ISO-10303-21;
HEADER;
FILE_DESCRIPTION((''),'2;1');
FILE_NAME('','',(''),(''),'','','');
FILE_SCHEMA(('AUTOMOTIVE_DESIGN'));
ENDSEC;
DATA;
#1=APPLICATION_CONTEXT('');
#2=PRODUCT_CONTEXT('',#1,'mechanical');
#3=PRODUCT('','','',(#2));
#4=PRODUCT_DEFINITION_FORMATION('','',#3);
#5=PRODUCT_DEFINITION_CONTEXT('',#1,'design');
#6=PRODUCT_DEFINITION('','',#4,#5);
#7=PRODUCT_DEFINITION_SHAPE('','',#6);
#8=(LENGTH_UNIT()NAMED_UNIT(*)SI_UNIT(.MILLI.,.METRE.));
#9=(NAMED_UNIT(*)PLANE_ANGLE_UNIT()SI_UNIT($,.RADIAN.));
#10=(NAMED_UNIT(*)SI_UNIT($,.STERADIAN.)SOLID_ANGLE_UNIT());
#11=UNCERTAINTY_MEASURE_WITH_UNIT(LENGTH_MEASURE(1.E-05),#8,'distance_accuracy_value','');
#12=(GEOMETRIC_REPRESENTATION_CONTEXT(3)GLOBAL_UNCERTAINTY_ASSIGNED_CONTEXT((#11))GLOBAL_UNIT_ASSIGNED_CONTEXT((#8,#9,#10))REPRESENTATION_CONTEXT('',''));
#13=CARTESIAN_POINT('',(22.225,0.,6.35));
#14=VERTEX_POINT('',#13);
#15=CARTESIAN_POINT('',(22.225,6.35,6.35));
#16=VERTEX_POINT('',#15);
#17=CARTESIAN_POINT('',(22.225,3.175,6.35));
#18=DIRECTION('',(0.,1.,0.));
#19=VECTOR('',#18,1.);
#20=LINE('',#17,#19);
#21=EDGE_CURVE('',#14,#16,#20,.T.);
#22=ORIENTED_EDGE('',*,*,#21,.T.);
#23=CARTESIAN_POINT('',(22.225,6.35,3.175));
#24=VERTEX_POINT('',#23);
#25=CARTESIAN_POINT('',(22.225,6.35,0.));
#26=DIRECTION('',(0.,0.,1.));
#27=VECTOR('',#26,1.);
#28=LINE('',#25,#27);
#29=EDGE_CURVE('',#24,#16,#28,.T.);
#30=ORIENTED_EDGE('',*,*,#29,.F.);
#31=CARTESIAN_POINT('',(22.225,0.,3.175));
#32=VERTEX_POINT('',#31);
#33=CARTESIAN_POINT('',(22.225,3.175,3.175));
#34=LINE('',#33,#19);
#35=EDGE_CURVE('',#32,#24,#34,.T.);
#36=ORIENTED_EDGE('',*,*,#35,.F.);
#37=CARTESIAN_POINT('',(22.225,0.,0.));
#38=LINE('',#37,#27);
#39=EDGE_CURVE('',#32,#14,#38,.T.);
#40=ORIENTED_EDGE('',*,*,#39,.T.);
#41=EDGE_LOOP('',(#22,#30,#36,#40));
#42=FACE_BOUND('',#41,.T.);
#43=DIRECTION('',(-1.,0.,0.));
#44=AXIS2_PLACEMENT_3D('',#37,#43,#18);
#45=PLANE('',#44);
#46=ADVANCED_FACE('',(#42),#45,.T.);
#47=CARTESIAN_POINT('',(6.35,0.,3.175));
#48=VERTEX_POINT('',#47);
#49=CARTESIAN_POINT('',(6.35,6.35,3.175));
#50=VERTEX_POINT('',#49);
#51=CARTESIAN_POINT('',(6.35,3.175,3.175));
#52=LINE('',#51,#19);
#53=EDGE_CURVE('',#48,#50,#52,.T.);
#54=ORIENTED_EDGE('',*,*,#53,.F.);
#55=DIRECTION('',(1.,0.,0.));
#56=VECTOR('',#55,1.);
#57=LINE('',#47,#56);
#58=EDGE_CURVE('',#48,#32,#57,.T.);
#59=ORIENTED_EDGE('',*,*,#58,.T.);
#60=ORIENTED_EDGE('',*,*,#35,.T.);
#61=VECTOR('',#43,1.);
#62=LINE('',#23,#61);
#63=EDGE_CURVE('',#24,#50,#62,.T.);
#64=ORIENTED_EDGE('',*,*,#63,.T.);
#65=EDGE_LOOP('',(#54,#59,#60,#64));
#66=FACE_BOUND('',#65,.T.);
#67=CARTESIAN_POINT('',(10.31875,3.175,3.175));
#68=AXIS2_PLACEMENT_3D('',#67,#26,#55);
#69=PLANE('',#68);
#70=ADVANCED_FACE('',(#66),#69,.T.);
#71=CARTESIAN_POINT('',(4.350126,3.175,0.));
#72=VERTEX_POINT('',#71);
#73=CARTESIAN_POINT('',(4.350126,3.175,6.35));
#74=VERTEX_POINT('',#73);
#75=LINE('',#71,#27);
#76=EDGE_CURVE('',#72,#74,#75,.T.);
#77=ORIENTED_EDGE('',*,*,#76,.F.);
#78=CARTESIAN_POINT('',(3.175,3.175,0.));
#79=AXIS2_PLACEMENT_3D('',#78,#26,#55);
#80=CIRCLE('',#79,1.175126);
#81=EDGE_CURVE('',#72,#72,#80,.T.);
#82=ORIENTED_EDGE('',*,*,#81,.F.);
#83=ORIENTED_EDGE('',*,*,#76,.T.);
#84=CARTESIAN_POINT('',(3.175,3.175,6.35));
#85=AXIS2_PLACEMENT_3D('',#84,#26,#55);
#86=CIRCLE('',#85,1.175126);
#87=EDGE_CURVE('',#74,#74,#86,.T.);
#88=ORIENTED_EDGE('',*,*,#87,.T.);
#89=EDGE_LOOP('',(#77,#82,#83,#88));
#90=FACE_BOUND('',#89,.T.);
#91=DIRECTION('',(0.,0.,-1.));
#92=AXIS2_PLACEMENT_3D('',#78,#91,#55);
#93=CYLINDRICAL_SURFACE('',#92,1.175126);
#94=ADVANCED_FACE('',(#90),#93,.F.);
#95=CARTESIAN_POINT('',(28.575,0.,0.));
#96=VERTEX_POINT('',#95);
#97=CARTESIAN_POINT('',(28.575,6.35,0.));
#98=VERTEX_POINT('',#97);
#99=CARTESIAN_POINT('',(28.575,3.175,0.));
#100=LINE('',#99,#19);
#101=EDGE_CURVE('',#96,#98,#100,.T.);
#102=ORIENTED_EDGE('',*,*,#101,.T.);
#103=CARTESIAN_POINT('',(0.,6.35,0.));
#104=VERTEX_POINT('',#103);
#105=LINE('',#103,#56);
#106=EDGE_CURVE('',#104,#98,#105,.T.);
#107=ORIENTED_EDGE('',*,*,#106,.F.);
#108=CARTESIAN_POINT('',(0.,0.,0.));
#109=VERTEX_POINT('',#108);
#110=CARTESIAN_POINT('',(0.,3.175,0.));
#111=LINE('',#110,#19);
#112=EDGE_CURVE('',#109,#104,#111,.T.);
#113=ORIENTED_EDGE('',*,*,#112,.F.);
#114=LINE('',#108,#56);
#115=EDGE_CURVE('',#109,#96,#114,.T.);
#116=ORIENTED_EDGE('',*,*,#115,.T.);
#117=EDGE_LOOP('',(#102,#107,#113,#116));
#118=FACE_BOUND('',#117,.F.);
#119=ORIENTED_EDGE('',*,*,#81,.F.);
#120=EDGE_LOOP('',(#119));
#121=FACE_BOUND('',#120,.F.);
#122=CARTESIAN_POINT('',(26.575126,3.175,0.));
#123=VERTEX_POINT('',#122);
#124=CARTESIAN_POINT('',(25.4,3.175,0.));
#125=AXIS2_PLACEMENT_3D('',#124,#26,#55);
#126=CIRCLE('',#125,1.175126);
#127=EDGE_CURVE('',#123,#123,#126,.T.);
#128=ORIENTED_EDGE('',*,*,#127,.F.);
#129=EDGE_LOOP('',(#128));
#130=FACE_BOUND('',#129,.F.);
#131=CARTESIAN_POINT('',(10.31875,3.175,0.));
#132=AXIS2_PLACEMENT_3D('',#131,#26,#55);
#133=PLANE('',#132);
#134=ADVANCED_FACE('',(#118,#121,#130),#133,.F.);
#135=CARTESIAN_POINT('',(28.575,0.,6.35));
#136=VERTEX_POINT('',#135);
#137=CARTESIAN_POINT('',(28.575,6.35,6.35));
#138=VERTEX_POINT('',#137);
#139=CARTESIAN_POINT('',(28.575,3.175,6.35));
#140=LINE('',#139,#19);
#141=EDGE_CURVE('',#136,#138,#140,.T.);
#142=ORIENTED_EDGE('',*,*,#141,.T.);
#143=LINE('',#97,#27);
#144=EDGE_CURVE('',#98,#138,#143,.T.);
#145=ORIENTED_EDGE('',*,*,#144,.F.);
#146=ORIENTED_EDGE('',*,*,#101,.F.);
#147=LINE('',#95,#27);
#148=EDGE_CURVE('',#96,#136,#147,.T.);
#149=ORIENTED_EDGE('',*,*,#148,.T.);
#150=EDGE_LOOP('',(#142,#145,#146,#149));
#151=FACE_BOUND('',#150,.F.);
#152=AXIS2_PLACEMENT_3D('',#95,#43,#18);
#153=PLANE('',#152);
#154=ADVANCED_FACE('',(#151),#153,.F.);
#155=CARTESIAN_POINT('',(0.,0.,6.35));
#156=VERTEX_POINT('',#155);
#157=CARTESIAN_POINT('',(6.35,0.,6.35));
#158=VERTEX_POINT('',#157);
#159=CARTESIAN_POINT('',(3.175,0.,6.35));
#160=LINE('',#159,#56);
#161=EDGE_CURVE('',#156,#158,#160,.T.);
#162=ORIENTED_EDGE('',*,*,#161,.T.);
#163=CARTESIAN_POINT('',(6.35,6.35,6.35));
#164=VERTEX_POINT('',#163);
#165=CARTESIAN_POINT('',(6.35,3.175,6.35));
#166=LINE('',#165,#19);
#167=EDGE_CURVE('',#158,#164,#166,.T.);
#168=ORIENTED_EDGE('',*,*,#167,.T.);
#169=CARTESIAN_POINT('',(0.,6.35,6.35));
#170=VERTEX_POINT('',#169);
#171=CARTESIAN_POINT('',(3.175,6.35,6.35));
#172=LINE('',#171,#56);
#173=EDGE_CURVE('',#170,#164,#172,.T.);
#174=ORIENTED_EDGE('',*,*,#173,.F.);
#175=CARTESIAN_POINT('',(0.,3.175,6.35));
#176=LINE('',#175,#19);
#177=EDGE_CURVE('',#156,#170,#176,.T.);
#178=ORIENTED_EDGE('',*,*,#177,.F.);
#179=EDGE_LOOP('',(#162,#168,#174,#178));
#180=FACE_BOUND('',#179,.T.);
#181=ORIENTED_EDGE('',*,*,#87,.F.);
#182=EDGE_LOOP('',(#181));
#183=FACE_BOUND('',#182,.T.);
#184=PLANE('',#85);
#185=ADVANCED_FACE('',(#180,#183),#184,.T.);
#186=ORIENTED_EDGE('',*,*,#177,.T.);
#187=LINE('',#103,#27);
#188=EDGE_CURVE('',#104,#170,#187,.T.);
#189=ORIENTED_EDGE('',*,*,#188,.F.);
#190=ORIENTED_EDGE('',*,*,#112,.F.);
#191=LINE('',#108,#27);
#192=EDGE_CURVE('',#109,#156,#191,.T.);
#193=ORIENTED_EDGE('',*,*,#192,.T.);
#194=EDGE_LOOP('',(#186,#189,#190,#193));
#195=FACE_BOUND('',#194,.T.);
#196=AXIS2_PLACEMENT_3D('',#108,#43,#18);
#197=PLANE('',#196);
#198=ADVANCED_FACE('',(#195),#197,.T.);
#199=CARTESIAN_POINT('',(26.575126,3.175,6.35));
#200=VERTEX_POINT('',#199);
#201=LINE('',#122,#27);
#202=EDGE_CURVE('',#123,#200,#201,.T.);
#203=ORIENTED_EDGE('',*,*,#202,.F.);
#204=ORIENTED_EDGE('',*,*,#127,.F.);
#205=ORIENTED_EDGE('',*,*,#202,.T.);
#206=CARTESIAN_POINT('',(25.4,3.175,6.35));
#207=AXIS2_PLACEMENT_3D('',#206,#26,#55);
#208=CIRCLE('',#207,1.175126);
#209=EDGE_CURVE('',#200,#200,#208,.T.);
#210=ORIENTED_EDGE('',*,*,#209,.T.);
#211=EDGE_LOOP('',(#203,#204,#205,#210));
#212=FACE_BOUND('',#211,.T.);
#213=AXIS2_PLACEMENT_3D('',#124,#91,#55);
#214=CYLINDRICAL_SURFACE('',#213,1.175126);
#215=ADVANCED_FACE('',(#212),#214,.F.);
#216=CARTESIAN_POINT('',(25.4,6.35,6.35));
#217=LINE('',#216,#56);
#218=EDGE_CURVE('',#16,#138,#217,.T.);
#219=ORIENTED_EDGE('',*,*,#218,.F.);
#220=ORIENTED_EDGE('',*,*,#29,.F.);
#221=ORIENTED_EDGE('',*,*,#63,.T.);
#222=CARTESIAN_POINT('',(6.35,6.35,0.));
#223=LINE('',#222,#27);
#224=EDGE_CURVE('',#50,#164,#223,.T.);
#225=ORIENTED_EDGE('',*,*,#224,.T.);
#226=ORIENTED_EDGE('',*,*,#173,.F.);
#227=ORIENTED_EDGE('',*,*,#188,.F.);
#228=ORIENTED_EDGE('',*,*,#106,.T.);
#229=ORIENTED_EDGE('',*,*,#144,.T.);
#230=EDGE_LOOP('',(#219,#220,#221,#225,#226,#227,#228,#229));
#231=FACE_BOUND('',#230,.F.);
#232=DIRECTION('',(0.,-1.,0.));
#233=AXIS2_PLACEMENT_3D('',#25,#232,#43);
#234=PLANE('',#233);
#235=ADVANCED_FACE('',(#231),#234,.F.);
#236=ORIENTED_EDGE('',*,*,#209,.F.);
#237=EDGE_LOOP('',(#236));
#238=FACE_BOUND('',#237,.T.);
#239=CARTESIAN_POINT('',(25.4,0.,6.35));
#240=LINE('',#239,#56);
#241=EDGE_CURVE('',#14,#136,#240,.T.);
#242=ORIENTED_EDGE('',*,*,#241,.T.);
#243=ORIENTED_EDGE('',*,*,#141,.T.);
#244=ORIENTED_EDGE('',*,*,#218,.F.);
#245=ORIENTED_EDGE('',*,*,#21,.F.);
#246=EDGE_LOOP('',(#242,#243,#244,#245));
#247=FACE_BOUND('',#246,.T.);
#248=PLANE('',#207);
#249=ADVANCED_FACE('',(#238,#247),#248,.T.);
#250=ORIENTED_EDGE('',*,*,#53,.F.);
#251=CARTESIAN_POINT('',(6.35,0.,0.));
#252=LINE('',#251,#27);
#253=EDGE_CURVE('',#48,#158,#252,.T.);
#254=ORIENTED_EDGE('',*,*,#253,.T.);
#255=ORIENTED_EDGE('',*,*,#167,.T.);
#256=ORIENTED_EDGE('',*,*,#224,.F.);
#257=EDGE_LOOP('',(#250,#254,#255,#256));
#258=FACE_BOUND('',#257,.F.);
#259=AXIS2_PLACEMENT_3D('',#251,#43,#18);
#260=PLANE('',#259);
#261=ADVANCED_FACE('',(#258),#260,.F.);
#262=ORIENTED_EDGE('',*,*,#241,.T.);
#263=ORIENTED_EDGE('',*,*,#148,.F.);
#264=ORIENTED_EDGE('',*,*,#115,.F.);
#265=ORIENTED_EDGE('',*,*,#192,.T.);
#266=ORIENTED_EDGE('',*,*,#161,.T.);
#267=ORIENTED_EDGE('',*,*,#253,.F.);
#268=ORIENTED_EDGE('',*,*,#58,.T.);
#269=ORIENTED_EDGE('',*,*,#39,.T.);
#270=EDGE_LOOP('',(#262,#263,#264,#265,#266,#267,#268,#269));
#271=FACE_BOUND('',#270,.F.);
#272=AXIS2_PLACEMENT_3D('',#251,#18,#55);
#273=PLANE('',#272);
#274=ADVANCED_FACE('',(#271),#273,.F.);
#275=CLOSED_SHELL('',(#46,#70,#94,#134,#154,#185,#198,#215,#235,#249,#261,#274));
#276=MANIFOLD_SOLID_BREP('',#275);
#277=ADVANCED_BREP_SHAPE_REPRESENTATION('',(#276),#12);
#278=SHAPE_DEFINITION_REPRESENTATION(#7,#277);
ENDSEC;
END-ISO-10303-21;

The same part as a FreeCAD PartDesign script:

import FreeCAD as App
import Part
import Sketcher

V = App.Vector
Q = App.Units.Quantity

doc = App.newDocument("Part")
body = doc.addObject("PartDesign::Body", "Body")

sketch1 = body.newObject("Sketcher::SketchObject", "Sketch")
sketch1.AttachmentSupport = (doc.getObject("XY_Plane"), [""])
sketch1.MapMode = "FlatFace"
sketch1.addGeometry([
    Part.LineSegment(V(0, 6.3, 0), V(0, 0, 0)),
    Part.LineSegment(V(0, 0, 0), V(6.3, 0, 0)),
    Part.LineSegment(V(6.3, 0, 0), V(6.3, 6.3, 0)),
    Part.LineSegment(V(6.3, 6.3, 0), V(0, 6.3, 0)),
    Part.Circle(V(3.2, 3.2, 0), V(0, 0, 1), 1.2),
], False)
sketch1.addConstraint([
    Sketcher.Constraint("Coincident", 0, 2, 1, 1),
    Sketcher.Constraint("Coincident", 1, 2, 2, 1),
    Sketcher.Constraint("Coincident", 2, 2, 3, 1),
    Sketcher.Constraint("Coincident", 3, 2, 0, 1),
    Sketcher.Constraint("Vertical", 0),
    Sketcher.Constraint("Horizontal", 1),
    Sketcher.Constraint("Vertical", 2),
    Sketcher.Constraint("Horizontal", 3),
    Sketcher.Constraint("Coincident", 0, 2, -1, 1),
    Sketcher.Constraint("Equal", 3, 0),
    Sketcher.Constraint("DistanceX", 1, 1, 1, 2, Q("0.25 in")),
    Sketcher.Constraint("DistanceX", -1, 1, 4, 3, Q("0.125 in")),
    Sketcher.Constraint("DistanceY", -1, 1, 4, 3, Q("0.125 in")),
    Sketcher.Constraint("Diameter", 4, 2.350253),
])
pad1 = body.newObject("PartDesign::Pad", "Pad")
pad1.Profile = sketch1
pad1.Length = Q("0.25 in")
body2 = doc.addObject("PartDesign::Body", "Body001")

sketch2 = body2.newObject("Sketcher::SketchObject", "Sketch001")
sketch2.AttachmentSupport = (doc.getObject("XY_Plane001"), [""])
sketch2.MapMode = "FlatFace"
sketch2.addGeometry([
    Part.LineSegment(V(22.2, 6.3, 0), V(22.2, 0, 0)),
    Part.LineSegment(V(22.2, 0, 0), V(28.6, 0, 0)),
    Part.LineSegment(V(28.6, 0, 0), V(28.6, 6.3, 0)),
    Part.LineSegment(V(28.6, 6.3, 0), V(22.2, 6.3, 0)),
    Part.Circle(V(25.4, 3.2, 0), V(0, 0, 1), 1.2),
], False)
sketch2.addConstraint([
    Sketcher.Constraint("Coincident", 0, 2, 1, 1),
    Sketcher.Constraint("Coincident", 1, 2, 2, 1),
    Sketcher.Constraint("Coincident", 2, 2, 3, 1),
    Sketcher.Constraint("Coincident", 3, 2, 0, 1),
    Sketcher.Constraint("Vertical", 0),
    Sketcher.Constraint("Horizontal", 1),
    Sketcher.Constraint("Vertical", 2),
    Sketcher.Constraint("Horizontal", 3),
    Sketcher.Constraint("PointOnObject", 0, 2, -1),
    Sketcher.Constraint("Equal", 3, 0),
    Sketcher.Constraint("DistanceX", -1, 1, 4, 3, Q("1 in")),
    Sketcher.Constraint("DistanceX", 1, 1, 1, 2, Q("0.25 in")),
    Sketcher.Constraint("DistanceY", -1, 1, 4, 3, Q("0.125 in")),
    Sketcher.Constraint("DistanceX", -1, 1, 0, 2, Q("0.875 in")),
    Sketcher.Constraint("Diameter", 4, 2.350253),
])
pad2 = body2.newObject("PartDesign::Pad", "Pad001")
pad2.Profile = sketch2
pad2.Length = Q("0.25 in")
body.AllowCompound = True
doc.recompute()

boolean = body.newObject("PartDesign::Boolean", "Boolean")
boolean.Type = "Fuse"
boolean.addObjects([body2])

sketch3 = body.newObject("Sketcher::SketchObject", "Sketch002")
sketch3.AttachmentSupport = (doc.getObject("XY_Plane"), [""])
sketch3.MapMode = "FlatFace"
sketch3.addGeometry([
    Part.LineSegment(V(6, 6, 0), V(6, 0, 0)),
    Part.LineSegment(V(6, 0, 0), V(22, 0, 0)),
    Part.LineSegment(V(22, 0, 0), V(22, 6, 0)),
    Part.LineSegment(V(22, 6, 0), V(6, 6, 0)),
], False)
sketch3.addConstraint([
    Sketcher.Constraint("Coincident", 0, 2, 1, 1),
    Sketcher.Constraint("Coincident", 1, 2, 2, 1),
    Sketcher.Constraint("Coincident", 2, 2, 3, 1),
    Sketcher.Constraint("Coincident", 3, 2, 0, 1),
    Sketcher.Constraint("Vertical", 0),
    Sketcher.Constraint("Horizontal", 1),
    Sketcher.Constraint("Vertical", 2),
    Sketcher.Constraint("Horizontal", 3),
    Sketcher.Constraint("PointOnObject", 0, 2, -1),
    Sketcher.Constraint("DistanceY", 0, 2, 0, 1, Q("0.25 in")),
    Sketcher.Constraint("DistanceX", 1, 1, 1, 2, Q("0.625 in")),
    Sketcher.Constraint("DistanceX", -1, 1, 0, 2, Q("0.25 in")),
])
pad3 = body.newObject("PartDesign::Pad", "Pad002")
pad3.Profile = sketch3
pad3.Length = Q("0.125 in")

doc.recompute()
